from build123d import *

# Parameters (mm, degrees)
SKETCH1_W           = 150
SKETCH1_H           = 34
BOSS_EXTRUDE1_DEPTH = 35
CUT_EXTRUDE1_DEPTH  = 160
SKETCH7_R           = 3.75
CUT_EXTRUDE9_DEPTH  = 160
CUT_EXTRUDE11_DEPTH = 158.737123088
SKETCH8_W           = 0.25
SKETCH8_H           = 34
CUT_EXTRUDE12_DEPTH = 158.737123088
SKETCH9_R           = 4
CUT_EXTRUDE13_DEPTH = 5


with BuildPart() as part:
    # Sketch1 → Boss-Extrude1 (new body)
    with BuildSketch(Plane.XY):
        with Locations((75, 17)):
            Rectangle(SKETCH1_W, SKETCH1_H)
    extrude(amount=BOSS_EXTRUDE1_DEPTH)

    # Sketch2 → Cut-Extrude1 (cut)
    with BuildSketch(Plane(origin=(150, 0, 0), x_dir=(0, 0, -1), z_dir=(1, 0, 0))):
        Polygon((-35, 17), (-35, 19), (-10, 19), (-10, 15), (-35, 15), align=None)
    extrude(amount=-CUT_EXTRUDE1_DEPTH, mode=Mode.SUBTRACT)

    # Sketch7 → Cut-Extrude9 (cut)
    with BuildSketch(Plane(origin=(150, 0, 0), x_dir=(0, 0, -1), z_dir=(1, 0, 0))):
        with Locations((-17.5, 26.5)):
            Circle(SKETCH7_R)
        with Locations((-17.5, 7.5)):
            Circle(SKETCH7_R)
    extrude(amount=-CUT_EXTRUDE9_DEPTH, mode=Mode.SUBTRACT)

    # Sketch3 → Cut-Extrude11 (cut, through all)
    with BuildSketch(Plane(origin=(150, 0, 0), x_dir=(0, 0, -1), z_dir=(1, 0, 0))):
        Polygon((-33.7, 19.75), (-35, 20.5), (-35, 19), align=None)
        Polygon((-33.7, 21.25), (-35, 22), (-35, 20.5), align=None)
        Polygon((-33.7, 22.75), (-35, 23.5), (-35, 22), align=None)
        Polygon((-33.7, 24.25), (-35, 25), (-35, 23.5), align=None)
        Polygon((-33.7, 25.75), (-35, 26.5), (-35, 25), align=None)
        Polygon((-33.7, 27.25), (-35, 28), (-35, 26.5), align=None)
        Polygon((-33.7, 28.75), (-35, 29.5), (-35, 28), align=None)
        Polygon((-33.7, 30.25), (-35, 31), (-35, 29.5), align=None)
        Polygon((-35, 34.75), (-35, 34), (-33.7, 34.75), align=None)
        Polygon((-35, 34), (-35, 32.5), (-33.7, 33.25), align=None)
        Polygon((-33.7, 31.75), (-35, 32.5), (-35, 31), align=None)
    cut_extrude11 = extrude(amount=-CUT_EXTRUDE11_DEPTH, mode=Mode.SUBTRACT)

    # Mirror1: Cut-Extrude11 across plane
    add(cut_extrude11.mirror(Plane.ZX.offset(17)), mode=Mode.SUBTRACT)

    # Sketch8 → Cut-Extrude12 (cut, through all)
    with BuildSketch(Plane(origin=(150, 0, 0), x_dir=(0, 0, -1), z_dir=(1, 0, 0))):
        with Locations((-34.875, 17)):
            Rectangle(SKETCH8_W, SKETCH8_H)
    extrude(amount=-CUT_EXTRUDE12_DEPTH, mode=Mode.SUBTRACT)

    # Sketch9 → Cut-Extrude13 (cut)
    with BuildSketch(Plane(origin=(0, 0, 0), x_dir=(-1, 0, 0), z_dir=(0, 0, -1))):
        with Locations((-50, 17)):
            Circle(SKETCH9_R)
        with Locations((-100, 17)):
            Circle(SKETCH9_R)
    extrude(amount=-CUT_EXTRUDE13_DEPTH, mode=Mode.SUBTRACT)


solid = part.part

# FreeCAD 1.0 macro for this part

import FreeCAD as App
import Part
import Sketcher

V = App.Vector

doc = App.newDocument("Part")
body = doc.addObject("PartDesign::Body", "Body")

sketch1 = body.newObject("Sketcher::SketchObject", "Sketch")
sketch1.AttachmentSupport = (doc.getObject("XY_Plane"), [""])
sketch1.MapMode = "FlatFace"
sketch1.addGeometry(Part.LineSegment(V(0, 34, 0), V(0, 0, 0)), False)
sketch1.addGeometry(Part.LineSegment(V(0, 0, 0), V(150, 0, 0)), False)
sketch1.addGeometry(Part.LineSegment(V(150, 0, 0), V(150, 34, 0)), False)
sketch1.addGeometry(Part.LineSegment(V(150, 34, 0), V(0, 34, 0)), False)
sketch1.addConstraint(Sketcher.Constraint("Coincident", 0, 2, 1, 1))
sketch1.addConstraint(Sketcher.Constraint("Coincident", 1, 2, 2, 1))
sketch1.addConstraint(Sketcher.Constraint("Coincident", 2, 2, 3, 1))
sketch1.addConstraint(Sketcher.Constraint("Coincident", 3, 2, 0, 1))
sketch1.addConstraint(Sketcher.Constraint("Vertical", 0))
sketch1.addConstraint(Sketcher.Constraint("Horizontal", 1))
sketch1.addConstraint(Sketcher.Constraint("Vertical", 2))
sketch1.addConstraint(Sketcher.Constraint("Horizontal", 3))
sketch1.addConstraint(Sketcher.Constraint("Coincident", 0, 2, -1, 1))
sketch1.addConstraint(Sketcher.Constraint("DistanceX", 1, 1, 1, 2, 150.0))
sketch1.addConstraint(Sketcher.Constraint("DistanceY", 0, 2, 0, 1, 34.0))
pad1 = body.newObject("PartDesign::Pad", "Pad")
pad1.Profile = sketch1
pad1.Length = 35

sketch2 = body.newObject("Sketcher::SketchObject", "Sketch001")
sketch2.AttachmentSupport = (doc.getObject("YZ_Plane"), [""])
sketch2.MapMode = "FlatFace"
sketch2.AttachmentOffset = App.Placement(V(0, 0, 150), App.Rotation())
sketch2.addGeometry(Part.LineSegment(V(19, 35, 0), V(15, 35, 0)), False)
sketch2.addGeometry(Part.LineSegment(V(15, 35, 0), V(15, 10, 0)), False)
sketch2.addGeometry(Part.LineSegment(V(15, 10, 0), V(19, 10, 0)), False)
sketch2.addGeometry(Part.LineSegment(V(19, 10, 0), V(19, 35, 0)), False)
sketch2.addConstraint(Sketcher.Constraint("Coincident", 0, 2, 1, 1))
sketch2.addConstraint(Sketcher.Constraint("Coincident", 1, 2, 2, 1))
sketch2.addConstraint(Sketcher.Constraint("Coincident", 2, 2, 3, 1))
sketch2.addConstraint(Sketcher.Constraint("Coincident", 3, 2, 0, 1))
sketch2.addConstraint(Sketcher.Constraint("Horizontal", 0))
sketch2.addConstraint(Sketcher.Constraint("Vertical", 1))
sketch2.addConstraint(Sketcher.Constraint("Horizontal", 2))
sketch2.addConstraint(Sketcher.Constraint("Vertical", 3))
sketch2.addConstraint(Sketcher.Constraint("DistanceX", 0, 2, 0, 1, 4.0))
sketch2.addConstraint(Sketcher.Constraint("DistanceY", 1, 2, 1, 1, 25.0))
sketch2.addConstraint(Sketcher.Constraint("DistanceX", -1, 1, 0, 2, 15.0))
sketch2.addConstraint(Sketcher.Constraint("DistanceY", -1, 1, 0, 2, 35.0))
pocket1 = body.newObject("PartDesign::Pocket", "Pocket")
pocket1.Profile = sketch2
pocket1.Length = 160

sketch3 = body.newObject("Sketcher::SketchObject", "Sketch002")
sketch3.AttachmentSupport = (doc.getObject("YZ_Plane"), [""])
sketch3.MapMode = "FlatFace"
sketch3.AttachmentOffset = App.Placement(V(0, 0, 150), App.Rotation())
sketch3.addGeometry(Part.Circle(V(26.5, 17.5, 0), V(0, 0, 1), 3.75), False)
sketch3.addGeometry(Part.Circle(V(7.5, 17.5, 0), V(0, 0, 1), 3.75), False)
sketch3.addConstraint(Sketcher.Constraint("Equal", 0, 1))
sketch3.addConstraint(Sketcher.Constraint("Horizontal", 0, 3, 1, 3))
sketch3.addConstraint(Sketcher.Constraint("Diameter", 0, 7.5))
sketch3.addConstraint(Sketcher.Constraint("DistanceX", 1, 3, 0, 3, 19.0))
sketch3.addConstraint(Sketcher.Constraint("DistanceX", -1, 1, 0, 3, 26.5))
sketch3.addConstraint(Sketcher.Constraint("DistanceY", -1, 1, 0, 3, 17.5))
pocket2 = body.newObject("PartDesign::Pocket", "Pocket001")
pocket2.Profile = sketch3
pocket2.Length = 160

sketch4 = body.newObject("Sketcher::SketchObject", "Sketch003")
sketch4.AttachmentSupport = (doc.getObject("YZ_Plane"), [""])
sketch4.MapMode = "FlatFace"
sketch4.AttachmentOffset = App.Placement(V(0, 0, 150), App.Rotation())
sketch4.addGeometry(Part.LineSegment(V(19.75, 33.7, 0), V(20.5, 35, 0)), False)
sketch4.addGeometry(Part.LineSegment(V(20.5, 35, 0), V(19, 35, 0)), False)
sketch4.addGeometry(Part.LineSegment(V(19, 35, 0), V(19.75, 33.7, 0)), False)
sketch4.addGeometry(Part.LineSegment(V(21.25, 33.7, 0), V(22, 35, 0)), False)
sketch4.addGeometry(Part.LineSegment(V(22, 35, 0), V(20.5, 35, 0)), False)
sketch4.addGeometry(Part.LineSegment(V(20.5, 35, 0), V(21.25, 33.7, 0)), False)
sketch4.addGeometry(Part.LineSegment(V(22.75, 33.7, 0), V(23.5, 35, 0)), False)
sketch4.addGeometry(Part.LineSegment(V(23.5, 35, 0), V(22, 35, 0)), False)
sketch4.addGeometry(Part.LineSegment(V(22, 35, 0), V(22.75, 33.7, 0)), False)
sketch4.addGeometry(Part.LineSegment(V(24.25, 33.7, 0), V(25, 35, 0)), False)
sketch4.addGeometry(Part.LineSegment(V(25, 35, 0), V(23.5, 35, 0)), False)
sketch4.addGeometry(Part.LineSegment(V(23.5, 35, 0), V(24.25, 33.7, 0)), False)
sketch4.addGeometry(Part.LineSegment(V(25.75, 33.7, 0), V(26.5, 35, 0)), False)
sketch4.addGeometry(Part.LineSegment(V(26.5, 35, 0), V(25, 35, 0)), False)
sketch4.addGeometry(Part.LineSegment(V(25, 35, 0), V(25.75, 33.7, 0)), False)
sketch4.addGeometry(Part.LineSegment(V(27.25, 33.7, 0), V(28, 35, 0)), False)
sketch4.addGeometry(Part.LineSegment(V(28, 35, 0), V(26.5, 35, 0)), False)
sketch4.addGeometry(Part.LineSegment(V(26.5, 35, 0), V(27.25, 33.7, 0)), False)
sketch4.addGeometry(Part.LineSegment(V(28.75, 33.7, 0), V(29.5, 35, 0)), False)
sketch4.addGeometry(Part.LineSegment(V(29.5, 35, 0), V(28, 35, 0)), False)
sketch4.addGeometry(Part.LineSegment(V(28, 35, 0), V(28.75, 33.7, 0)), False)
sketch4.addGeometry(Part.LineSegment(V(30.25, 33.7, 0), V(31, 35, 0)), False)
sketch4.addGeometry(Part.LineSegment(V(31, 35, 0), V(29.5, 35, 0)), False)
sketch4.addGeometry(Part.LineSegment(V(29.5, 35, 0), V(30.25, 33.7, 0)), False)
sketch4.addGeometry(Part.LineSegment(V(34.75, 35, 0), V(34, 35, 0)), False)
sketch4.addGeometry(Part.LineSegment(V(34, 35, 0), V(34.75, 33.7, 0)), False)
sketch4.addGeometry(Part.LineSegment(V(34.75, 33.7, 0), V(34.75, 35, 0)), False)
sketch4.addGeometry(Part.LineSegment(V(34, 35, 0), V(32.5, 35, 0)), False)
sketch4.addGeometry(Part.LineSegment(V(32.5, 35, 0), V(33.25, 33.7, 0)), False)
sketch4.addGeometry(Part.LineSegment(V(33.25, 33.7, 0), V(34, 35, 0)), False)
sketch4.addGeometry(Part.LineSegment(V(31.75, 33.7, 0), V(32.5, 35, 0)), False)
sketch4.addGeometry(Part.LineSegment(V(32.5, 35, 0), V(31, 35, 0)), False)
sketch4.addGeometry(Part.LineSegment(V(31, 35, 0), V(31.75, 33.7, 0)), False)
sketch4.addConstraint(Sketcher.Constraint("Coincident", 0, 2, 1, 1))
sketch4.addConstraint(Sketcher.Constraint("Coincident", 1, 2, 2, 1))
sketch4.addConstraint(Sketcher.Constraint("Coincident", 2, 2, 0, 1))
sketch4.addConstraint(Sketcher.Constraint("Coincident", 3, 2, 4, 1))
sketch4.addConstraint(Sketcher.Constraint("Coincident", 4, 2, 5, 1))
sketch4.addConstraint(Sketcher.Constraint("Coincident", 5, 2, 3, 1))
sketch4.addConstraint(Sketcher.Constraint("Coincident", 6, 2, 7, 1))
sketch4.addConstraint(Sketcher.Constraint("Coincident", 7, 2, 8, 1))
sketch4.addConstraint(Sketcher.Constraint("Coincident", 8, 2, 6, 1))
sketch4.addConstraint(Sketcher.Constraint("Coincident", 9, 2, 10, 1))
sketch4.addConstraint(Sketcher.Constraint("Coincident", 10, 2, 11, 1))
sketch4.addConstraint(Sketcher.Constraint("Coincident", 11, 2, 9, 1))
sketch4.addConstraint(Sketcher.Constraint("Coincident", 12, 2, 13, 1))
sketch4.addConstraint(Sketcher.Constraint("Coincident", 13, 2, 14, 1))
sketch4.addConstraint(Sketcher.Constraint("Coincident", 14, 2, 12, 1))
sketch4.addConstraint(Sketcher.Constraint("Coincident", 15, 2, 16, 1))
sketch4.addConstraint(Sketcher.Constraint("Coincident", 16, 2, 17, 1))
sketch4.addConstraint(Sketcher.Constraint("Coincident", 17, 2, 15, 1))
sketch4.addConstraint(Sketcher.Constraint("Coincident", 18, 2, 19, 1))
sketch4.addConstraint(Sketcher.Constraint("Coincident", 19, 2, 20, 1))
sketch4.addConstraint(Sketcher.Constraint("Coincident", 20, 2, 18, 1))
sketch4.addConstraint(Sketcher.Constraint("Coincident", 21, 2, 22, 1))
sketch4.addConstraint(Sketcher.Constraint("Coincident", 22, 2, 23, 1))
sketch4.addConstraint(Sketcher.Constraint("Coincident", 23, 2, 21, 1))
sketch4.addConstraint(Sketcher.Constraint("Coincident", 24, 2, 25, 1))
sketch4.addConstraint(Sketcher.Constraint("Coincident", 25, 2, 26, 1))
sketch4.addConstraint(Sketcher.Constraint("Coincident", 26, 2, 24, 1))
sketch4.addConstraint(Sketcher.Constraint("Coincident", 27, 2, 28, 1))
sketch4.addConstraint(Sketcher.Constraint("Coincident", 28, 2, 29, 1))
sketch4.addConstraint(Sketcher.Constraint("Coincident", 29, 2, 27, 1))
sketch4.addConstraint(Sketcher.Constraint("Coincident", 30, 2, 31, 1))
sketch4.addConstraint(Sketcher.Constraint("Coincident", 31, 2, 32, 1))
sketch4.addConstraint(Sketcher.Constraint("Coincident", 32, 2, 30, 1))
sketch4.addConstraint(Sketcher.Constraint("Horizontal", 1))
sketch4.addConstraint(Sketcher.Constraint("Horizontal", 4))
sketch4.addConstraint(Sketcher.Constraint("Horizontal", 7))
sketch4.addConstraint(Sketcher.Constraint("Horizontal", 10))
sketch4.addConstraint(Sketcher.Constraint("Horizontal", 13))
sketch4.addConstraint(Sketcher.Constraint("Horizontal", 16))
sketch4.addConstraint(Sketcher.Constraint("Horizontal", 19))
sketch4.addConstraint(Sketcher.Constraint("Horizontal", 22))
sketch4.addConstraint(Sketcher.Constraint("Horizontal", 24))
sketch4.addConstraint(Sketcher.Constraint("Vertical", 26))
sketch4.addConstraint(Sketcher.Constraint("Horizontal", 27))
sketch4.addConstraint(Sketcher.Constraint("Horizontal", 31))
sketch4.addConstraint(Sketcher.Constraint("Coincident", 4, 2, 0, 2))
sketch4.addConstraint(Sketcher.Constraint("Coincident", 7, 2, 3, 2))
sketch4.addConstraint(Sketcher.Constraint("Coincident", 10, 2, 6, 2))
sketch4.addConstraint(Sketcher.Constraint("Coincident", 13, 2, 9, 2))
sketch4.addConstraint(Sketcher.Constraint("Coincident", 16, 2, 12, 2))
sketch4.addConstraint(Sketcher.Constraint("Coincident", 19, 2, 15, 2))
sketch4.addConstraint(Sketcher.Constraint("Coincident", 22, 2, 18, 2))
sketch4.addConstraint(Sketcher.Constraint("Coincident", 29, 2, 24, 2))
sketch4.addConstraint(Sketcher.Constraint("Coincident", 30, 2, 27, 2))
sketch4.addConstraint(Sketcher.Constraint("Coincident", 31, 2, 21, 2))
sketch4.addConstraint(Sketcher.Constraint("Parallel", 0, 3))
sketch4.addConstraint(Sketcher.Constraint("Parallel", 2, 5))
sketch4.addConstraint(Sketcher.Constraint("Parallel", 3, 6))
sketch4.addConstraint(Sketcher.Constraint("Parallel", 5, 8))
sketch4.addConstraint(Sketcher.Constraint("Parallel", 6, 9))
sketch4.addConstraint(Sketcher.Constraint("Parallel", 8, 11))
sketch4.addConstraint(Sketcher.Constraint("Parallel", 9, 12))
sketch4.addConstraint(Sketcher.Constraint("Parallel", 11, 14))
sketch4.addConstraint(Sketcher.Constraint("Parallel", 12, 15))
sketch4.addConstraint(Sketcher.Constraint("Parallel", 14, 17))
sketch4.addConstraint(Sketcher.Constraint("Parallel", 15, 18))
sketch4.addConstraint(Sketcher.Constraint("Parallel", 17, 20))
sketch4.addConstraint(Sketcher.Constraint("Parallel", 18, 21))
sketch4.addConstraint(Sketcher.Constraint("Parallel", 20, 23))
sketch4.addConstraint(Sketcher.Constraint("Parallel", 23, 25))
sketch4.addConstraint(Sketcher.Constraint("Parallel", 25, 28))
sketch4.addConstraint(Sketcher.Constraint("Parallel", 21, 29))
sketch4.addConstraint(Sketcher.Constraint("Parallel", 29, 30))
sketch4.addConstraint(Sketcher.Constraint("Parallel", 28, 32))
sketch4.addConstraint(Sketcher.Constraint("Horizontal", 2, 2, 5, 2))
sketch4.addConstraint(Sketcher.Constraint("Horizontal", 5, 2, 8, 2))
sketch4.addConstraint(Sketcher.Constraint("Horizontal", 8, 2, 11, 2))
sketch4.addConstraint(Sketcher.Constraint("Horizontal", 11, 2, 14, 2))
sketch4.addConstraint(Sketcher.Constraint("Horizontal", 14, 2, 17, 2))
sketch4.addConstraint(Sketcher.Constraint("Horizontal", 17, 2, 20, 2))
sketch4.addConstraint(Sketcher.Constraint("Horizontal", 20, 2, 23, 2))
sketch4.addConstraint(Sketcher.Constraint("Horizontal", 23, 2, 25, 2))
sketch4.addConstraint(Sketcher.Constraint("Horizontal", 25, 2, 28, 2))
sketch4.addConstraint(Sketcher.Constraint("Horizontal", 28, 2, 32, 2))
sketch4.addConstraint(Sketcher.Constraint("Equal", 0, 2))
sketch4.addConstraint(Sketcher.Constraint("DistanceX", 1, 2, 1, 1, 1.5))
sketch4.addConstraint(Sketcher.Constraint("DistanceY", 26, 1, 26, 2, 1.3))
sketch4.addConstraint(Sketcher.Constraint("DistanceY", -1, 1, 0, 2, 35.0))
sketch4.addConstraint(Sketcher.Constraint("DistanceX", -1, 1, 1, 2, 19.0))
pocket3 = body.newObject("PartDesign::Pocket", "Pocket002")
pocket3.Profile = sketch4
pocket3.Type = "ThroughAll"
doc.recompute()

datumplane = body.newObject("PartDesign::Plane", "DatumPlane")
datumplane.AttachmentSupport = (doc.getObject("XZ_Plane"), [""])
datumplane.MapMode = "FlatFace"
datumplane.AttachmentOffset = App.Placement(V(0, 0, -17), App.Rotation())
mirrored = body.newObject("PartDesign::Mirrored", "Mirrored")
mirrored.Originals = [pocket3]
mirrored.MirrorPlane = (datumplane, [""])
body.Tip = mirrored

sketch5 = body.newObject("Sketcher::SketchObject", "Sketch004")
sketch5.AttachmentSupport = (doc.getObject("YZ_Plane"), [""])
sketch5.MapMode = "FlatFace"
sketch5.AttachmentOffset = App.Placement(V(0, 0, 150), App.Rotation())
sketch5.addGeometry(Part.LineSegment(V(34, 35, 0), V(0, 35, 0)), False)
sketch5.addGeometry(Part.LineSegment(V(0, 35, 0), V(0, 34.75, 0)), False)
sketch5.addGeometry(Part.LineSegment(V(0, 34.75, 0), V(34, 34.75, 0)), False)
sketch5.addGeometry(Part.LineSegment(V(34, 34.75, 0), V(34, 35, 0)), False)
sketch5.addConstraint(Sketcher.Constraint("Coincident", 0, 2, 1, 1))
sketch5.addConstraint(Sketcher.Constraint("Coincident", 1, 2, 2, 1))
sketch5.addConstraint(Sketcher.Constraint("Coincident", 2, 2, 3, 1))
sketch5.addConstraint(Sketcher.Constraint("Coincident", 3, 2, 0, 1))
sketch5.addConstraint(Sketcher.Constraint("Horizontal", 0))
sketch5.addConstraint(Sketcher.Constraint("Vertical", 1))
sketch5.addConstraint(Sketcher.Constraint("Horizontal", 2))
sketch5.addConstraint(Sketcher.Constraint("Vertical", 3))
sketch5.addConstraint(Sketcher.Constraint("PointOnObject", 0, 2, -2))
sketch5.addConstraint(Sketcher.Constraint("DistanceX", 0, 2, 0, 1, 34.0))
sketch5.addConstraint(Sketcher.Constraint("DistanceY", -1, 1, 0, 2, 35.0))
sketch5.addConstraint(Sketcher.Constraint("DistanceY", 1, 2, 1, 1, 0.25))
pocket4 = body.newObject("PartDesign::Pocket", "Pocket003")
pocket4.Profile = sketch5
pocket4.Type = "ThroughAll"

sketch6 = body.newObject("Sketcher::SketchObject", "Sketch005")
sketch6.AttachmentSupport = (doc.getObject("XY_Plane"), [""])
sketch6.MapMode = "FlatFace"
sketch6.addGeometry(Part.Circle(V(50, 17, 0), V(0, 0, 1), 4), False)
sketch6.addGeometry(Part.Circle(V(100, 17, 0), V(0, 0, 1), 4), False)
sketch6.addConstraint(Sketcher.Constraint("Equal", 0, 1))
sketch6.addConstraint(Sketcher.Constraint("Horizontal", 0, 3, 1, 3))
sketch6.addConstraint(Sketcher.Constraint("Diameter", 0, 8.0))
sketch6.addConstraint(Sketcher.Constraint("DistanceX", -1, 1, 0, 3, 50.0))
sketch6.addConstraint(Sketcher.Constraint("DistanceY", -1, 1, 0, 3, 17.0))
sketch6.addConstraint(Sketcher.Constraint("DistanceX", -1, 1, 1, 3, 100.0))
pocket5 = body.newObject("PartDesign::Pocket", "Pocket004")
pocket5.Profile = sketch6
pocket5.Length = 5
pocket5.Reversed = True

doc.recompute()
